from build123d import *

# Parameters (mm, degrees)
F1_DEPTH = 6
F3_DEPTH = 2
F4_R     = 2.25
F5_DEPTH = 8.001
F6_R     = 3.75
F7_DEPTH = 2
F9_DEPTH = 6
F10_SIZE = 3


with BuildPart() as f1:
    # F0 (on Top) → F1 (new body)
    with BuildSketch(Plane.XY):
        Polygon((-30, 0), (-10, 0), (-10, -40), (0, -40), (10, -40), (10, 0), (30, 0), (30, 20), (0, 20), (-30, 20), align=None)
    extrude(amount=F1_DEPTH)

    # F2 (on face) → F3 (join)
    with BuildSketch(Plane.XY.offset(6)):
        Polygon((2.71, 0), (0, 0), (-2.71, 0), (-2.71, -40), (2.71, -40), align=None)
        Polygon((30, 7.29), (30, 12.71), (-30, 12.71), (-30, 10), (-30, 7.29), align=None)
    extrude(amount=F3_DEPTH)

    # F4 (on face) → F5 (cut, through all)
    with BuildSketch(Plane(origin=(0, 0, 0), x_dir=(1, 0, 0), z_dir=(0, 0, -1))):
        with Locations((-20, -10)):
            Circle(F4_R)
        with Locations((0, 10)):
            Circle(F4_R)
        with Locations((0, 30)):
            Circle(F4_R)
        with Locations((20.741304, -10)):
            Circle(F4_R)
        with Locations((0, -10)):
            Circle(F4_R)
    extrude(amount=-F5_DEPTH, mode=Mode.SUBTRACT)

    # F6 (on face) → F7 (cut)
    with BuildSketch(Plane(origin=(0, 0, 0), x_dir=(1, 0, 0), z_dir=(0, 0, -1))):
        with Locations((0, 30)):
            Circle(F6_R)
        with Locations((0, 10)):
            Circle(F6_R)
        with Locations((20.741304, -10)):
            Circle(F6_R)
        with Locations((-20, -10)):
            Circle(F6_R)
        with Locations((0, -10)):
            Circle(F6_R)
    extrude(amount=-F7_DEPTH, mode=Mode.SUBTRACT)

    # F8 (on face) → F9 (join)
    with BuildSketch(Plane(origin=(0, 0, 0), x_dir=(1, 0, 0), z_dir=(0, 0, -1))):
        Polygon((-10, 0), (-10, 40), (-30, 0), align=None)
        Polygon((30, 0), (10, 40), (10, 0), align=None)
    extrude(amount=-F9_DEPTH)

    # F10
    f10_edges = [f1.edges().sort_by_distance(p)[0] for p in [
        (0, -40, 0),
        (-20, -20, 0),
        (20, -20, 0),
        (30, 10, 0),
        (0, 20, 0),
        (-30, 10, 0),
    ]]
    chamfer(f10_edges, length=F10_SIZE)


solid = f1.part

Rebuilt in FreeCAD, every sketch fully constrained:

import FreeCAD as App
import Part
import Sketcher
from FreeCAD import Vector


def edges_at(feature, points):
    """Names of the edges that pass closest to the given points."""
    edges = feature.Shape.Edges
    near = lambda p: min(range(len(edges)), key=lambda i: edges[i].distToShape(Part.Vertex(*p))[0])
    return sorted({f"Edge{near(p) + 1}" for p in points})

doc = App.newDocument("Part")
body = doc.addObject("PartDesign::Body", "Body")

# Sketch on XY plane
sketch1 = body.newObject("Sketcher::SketchObject", "Sketch")
sketch1.AttachmentSupport = (doc.getObject("XY_Plane"), [""])
sketch1.MapMode = "FlatFace"
sketch1.addGeometry(Part.LineSegment(Vector(-30, 0, 0), Vector(-10, 0, 0)), False)
sketch1.addGeometry(Part.LineSegment(Vector(-10, 0, 0), Vector(-10, -40, 0)), False)
sketch1.addGeometry(Part.LineSegment(Vector(-10, -40, 0), Vector(10, -40, 0)), False)
sketch1.addGeometry(Part.LineSegment(Vector(10, -40, 0), Vector(10, 0, 0)), False)
sketch1.addGeometry(Part.LineSegment(Vector(10, 0, 0), Vector(30, 0, 0)), False)
sketch1.addGeometry(Part.LineSegment(Vector(30, 0, 0), Vector(30, 20, 0)), False)
sketch1.addGeometry(Part.LineSegment(Vector(30, 20, 0), Vector(-30, 20, 0)), False)
sketch1.addGeometry(Part.LineSegment(Vector(-30, 20, 0), Vector(-30, 0, 0)), False)
sketch1.addConstraint(Sketcher.Constraint("Coincident", 0, 2, 1, 1))
sketch1.addConstraint(Sketcher.Constraint("Coincident", 1, 2, 2, 1))
sketch1.addConstraint(Sketcher.Constraint("Coincident", 2, 2, 3, 1))
sketch1.addConstraint(Sketcher.Constraint("Coincident", 3, 2, 4, 1))
sketch1.addConstraint(Sketcher.Constraint("Coincident", 4, 2, 5, 1))
sketch1.addConstraint(Sketcher.Constraint("Coincident", 5, 2, 6, 1))
sketch1.addConstraint(Sketcher.Constraint("Coincident", 6, 2, 7, 1))
sketch1.addConstraint(Sketcher.Constraint("Coincident", 7, 2, 0, 1))
sketch1.addConstraint(Sketcher.Constraint("Horizontal", 0))
sketch1.addConstraint(Sketcher.Constraint("Vertical", 1))
sketch1.addConstraint(Sketcher.Constraint("Horizontal", 2))
sketch1.addConstraint(Sketcher.Constraint("Vertical", 3))
sketch1.addConstraint(Sketcher.Constraint("Horizontal", 4))
sketch1.addConstraint(Sketcher.Constraint("Vertical", 5))
sketch1.addConstraint(Sketcher.Constraint("Horizontal", 6))
sketch1.addConstraint(Sketcher.Constraint("Vertical", 7))
sketch1.addConstraint(Sketcher.Constraint("Symmetric", 0, 2, 3, 2, -1, 1))
sketch1.addConstraint(Sketcher.Constraint("Symmetric", 4, 2, 7, 2, -2))
sketch1.addConstraint(Sketcher.Constraint("Equal", 0, 2))
sketch1.addConstraint(Sketcher.Constraint("Equal", 4, 5))
sketch1.addConstraint(Sketcher.Constraint("DistanceX", 0, 1, 0, 2, 20.0))
sketch1.addConstraint(Sketcher.Constraint("DistanceY", 1, 2, 1, 1, 40.0))
pad1 = body.newObject("PartDesign::Pad", "Pad")
pad1.Profile = sketch1
pad1.Length = 6

# Sketch on XY plane
sketch2 = body.newObject("Sketcher::SketchObject", "Sketch001")
sketch2.AttachmentSupport = (doc.getObject("XY_Plane"), [""])
sketch2.MapMode = "FlatFace"
sketch2.AttachmentOffset = App.Placement(Vector(0, 0, 6), App.Rotation())
sketch2.addGeometry(Part.LineSegment(Vector(3, 0, 0), Vector(-3, 0, 0)), False)
sketch2.addGeometry(Part.LineSegment(Vector(-3, 0, 0), Vector(-3, -40, 0)), False)
sketch2.addGeometry(Part.LineSegment(Vector(-3, -40, 0), Vector(3, -40, 0)), False)
sketch2.addGeometry(Part.LineSegment(Vector(3, -40, 0), Vector(3, 0, 0)), False)
sketch2.addGeometry(Part.LineSegment(Vector(30, 7, 0), Vector(30, 13, 0)), False)
sketch2.addGeometry(Part.LineSegment(Vector(30, 13, 0), Vector(-30, 13, 0)), False)
sketch2.addGeometry(Part.LineSegment(Vector(-30, 13, 0), Vector(-30, 7, 0)), False)
sketch2.addGeometry(Part.LineSegment(Vector(-30, 7, 0), Vector(30, 7, 0)), False)
sketch2.addConstraint(Sketcher.Constraint("Coincident", 0, 2, 1, 1))
sketch2.addConstraint(Sketcher.Constraint("Coincident", 1, 2, 2, 1))
sketch2.addConstraint(Sketcher.Constraint("Coincident", 2, 2, 3, 1))
sketch2.addConstraint(Sketcher.Constraint("Coincident", 3, 2, 0, 1))
sketch2.addConstraint(Sketcher.Constraint("Coincident", 4, 2, 5, 1))
sketch2.addConstraint(Sketcher.Constraint("Coincident", 5, 2, 6, 1))
sketch2.addConstraint(Sketcher.Constraint("Coincident", 6, 2, 7, 1))
sketch2.addConstraint(Sketcher.Constraint("Coincident", 7, 2, 4, 1))
sketch2.addConstraint(Sketcher.Constraint("Horizontal", 0))
sketch2.addConstraint(Sketcher.Constraint("Vertical", 1))
sketch2.addConstraint(Sketcher.Constraint("Horizontal", 2))
sketch2.addConstraint(Sketcher.Constraint("Vertical", 3))
sketch2.addConstraint(Sketcher.Constraint("Vertical", 4))
sketch2.addConstraint(Sketcher.Constraint("Horizontal", 5))
sketch2.addConstraint(Sketcher.Constraint("Vertical", 6))
sketch2.addConstraint(Sketcher.Constraint("Horizontal", 7))
sketch2.addConstraint(Sketcher.Constraint("Symmetric", 0, 2, 3, 2, -1, 1))
sketch2.addConstraint(Sketcher.Constraint("Equal", 2, 4))
sketch2.addConstraint(Sketcher.Constraint("DistanceX", 5, 2, 5, 1, 60.0))
sketch2.addConstraint(Sketcher.Constraint("DistanceY", 1, 2, 1, 1, 40.0))
sketch2.addConstraint(Sketcher.Constraint("DistanceX", -1, 1, 4, 2, 30.0))
sketch2.addConstraint(Sketcher.Constraint("DistanceX", 0, 2, 0, 1, 5.42))
sketch2.addConstraint(Sketcher.Constraint("DistanceY", -1, 1, 4, 2, 12.71))
pad2 = body.newObject("PartDesign::Pad", "Pad001")
pad2.Profile = sketch2
pad2.Length = 2

# Sketch on XY plane
sketch3 = body.newObject("Sketcher::SketchObject", "Sketch002")
sketch3.AttachmentSupport = (doc.getObject("XY_Plane"), [""])
sketch3.MapMode = "FlatFace"
sketch3.addGeometry(Part.Circle(Vector(-20, 10, 0), Vector(0, 0, 1), 2.2), False)
sketch3.addGeometry(Part.Circle(Vector(0, -10, 0), Vector(0, 0, 1), 2.2), False)
sketch3.addGeometry(Part.Circle(Vector(0, -30, 0), Vector(0, 0, 1), 2.2), False)
sketch3.addGeometry(Part.Circle(Vector(20.7, 10, 0), Vector(0, 0, 1), 2.2), False)
sketch3.addGeometry(Part.Circle(Vector(0, 10, 0), Vector(0, 0, 1), 2.2), False)
sketch3.addConstraint(Sketcher.Constraint("Equal", 0, 1))
sketch3.addConstraint(Sketcher.Constraint("Equal", 1, 2))
sketch3.addConstraint(Sketcher.Constraint("Equal", 2, 3))
sketch3.addConstraint(Sketcher.Constraint("Equal", 3, 4))
sketch3.addConstraint(Sketcher.Constraint("Symmetric", 1, 3, 4, 3, -1, 1))
sketch3.addConstraint(Sketcher.Constraint("PointOnObject", 1, 3, -2))
sketch3.addConstraint(Sketcher.Constraint("PointOnObject", 2, 3, -2))
sketch3.addConstraint(Sketcher.Constraint("Horizontal", 0, 3, 3, 3))
sketch3.addConstraint(Sketcher.Constraint("Horizontal", 3, 3, 4, 3))
sketch3.addConstraint(Sketcher.Constraint("Diameter", 0, 4.5))
sketch3.addConstraint(Sketcher.Constraint("DistanceX", 0, 3, -1, 1, 20.0))
sketch3.addConstraint(Sketcher.Constraint("DistanceY", -1, 1, 0, 3, 10.0))
sketch3.addConstraint(Sketcher.Constraint("DistanceY", 2, 3, -1, 1, 30.0))
sketch3.addConstraint(Sketcher.Constraint("DistanceX", -1, 1, 3, 3, 20.741304))
pocket1 = body.newObject("PartDesign::Pocket", "Pocket")
pocket1.Profile = sketch3
pocket1.Type = "ThroughAll"
pocket1.Reversed = True

# Sketch on XY plane
sketch4 = body.newObject("Sketcher::SketchObject", "Sketch003")
sketch4.AttachmentSupport = (doc.getObject("XY_Plane"), [""])
sketch4.MapMode = "FlatFace"
sketch4.addGeometry(Part.Circle(Vector(0, -30, 0), Vector(0, 0, 1), 3.8), False)
sketch4.addGeometry(Part.Circle(Vector(0, -10, 0), Vector(0, 0, 1), 3.8), False)
sketch4.addGeometry(Part.Circle(Vector(20.7, 10, 0), Vector(0, 0, 1), 3.8), False)
sketch4.addGeometry(Part.Circle(Vector(-20, 10, 0), Vector(0, 0, 1), 3.8), False)
sketch4.addGeometry(Part.Circle(Vector(0, 10, 0), Vector(0, 0, 1), 3.8), False)
sketch4.addConstraint(Sketcher.Constraint("Equal", 0, 1))
sketch4.addConstraint(Sketcher.Constraint("Equal", 1, 2))
sketch4.addConstraint(Sketcher.Constraint("Equal", 2, 3))
sketch4.addConstraint(Sketcher.Constraint("Equal", 3, 4))
sketch4.addConstraint(Sketcher.Constraint("Symmetric", 1, 3, 4, 3, -1, 1))
sketch4.addConstraint(Sketcher.Constraint("PointOnObject", 0, 3, -2))
sketch4.addConstraint(Sketcher.Constraint("PointOnObject", 1, 3, -2))
sketch4.addConstraint(Sketcher.Constraint("Horizontal", 2, 3, 3, 3))
sketch4.addConstraint(Sketcher.Constraint("Horizontal", 3, 3, 4, 3))
sketch4.addConstraint(Sketcher.Constraint("Diameter", 0, 7.5))
sketch4.addConstraint(Sketcher.Constraint("DistanceY", 0, 3, -1, 1, 30.0))
sketch4.addConstraint(Sketcher.Constraint("DistanceY", 1, 3, -1, 1, 10.0))
sketch4.addConstraint(Sketcher.Constraint("DistanceX", 3, 3, -1, 1, 20.0))
sketch4.addConstraint(Sketcher.Constraint("DistanceX", -1, 1, 2, 3, 20.741304))
pocket2 = body.newObject("PartDesign::Pocket", "Pocket001")
pocket2.Profile = sketch4
pocket2.Length = 2
pocket2.Reversed = True

# Sketch on XY plane
sketch5 = body.newObject("Sketcher::SketchObject", "Sketch004")
sketch5.AttachmentSupport = (doc.getObject("XY_Plane"), [""])
sketch5.MapMode = "FlatFace"
sketch5.addGeometry(Part.LineSegment(Vector(-10, 0, 0), Vector(-10, -40, 0)), False)
sketch5.addGeometry(Part.LineSegment(Vector(-10, -40, 0), Vector(-30, 0, 0)), False)
sketch5.addGeometry(Part.LineSegment(Vector(-30, 0, 0), Vector(-10, 0, 0)), False)
sketch5.addGeometry(Part.LineSegment(Vector(30, 0, 0), Vector(10, -40, 0)), False)
sketch5.addGeometry(Part.LineSegment(Vector(10, -40, 0), Vector(10, 0, 0)), False)
sketch5.addGeometry(Part.LineSegment(Vector(10, 0, 0), Vector(30, 0, 0)), False)
sketch5.addConstraint(Sketcher.Constraint("Coincident", 0, 2, 1, 1))
sketch5.addConstraint(Sketcher.Constraint("Coincident", 1, 2, 2, 1))
sketch5.addConstraint(Sketcher.Constraint("Coincident", 2, 2, 0, 1))
sketch5.addConstraint(Sketcher.Constraint("Coincident", 3, 2, 4, 1))
sketch5.addConstraint(Sketcher.Constraint("Coincident", 4, 2, 5, 1))
sketch5.addConstraint(Sketcher.Constraint("Coincident", 5, 2, 3, 1))
sketch5.addConstraint(Sketcher.Constraint("Vertical", 0))
sketch5.addConstraint(Sketcher.Constraint("Horizontal", 2))
sketch5.addConstraint(Sketcher.Constraint("Vertical", 4))
sketch5.addConstraint(Sketcher.Constraint("Horizontal", 5))
sketch5.addConstraint(Sketcher.Constraint("Symmetric", 2, 2, 4, 2, -1, 1))
sketch5.addConstraint(Sketcher.Constraint("Symmetric", 1, 2, 5, 2, -2))
sketch5.addConstraint(Sketcher.Constraint("Horizontal", 0, 2, 3, 2))
sketch5.addConstraint(Sketcher.Constraint("DistanceX", 2, 1, 2, 2, 20.0))
sketch5.addConstraint(Sketcher.Constraint("DistanceY", 0, 2, 0, 1, 40.0))
sketch5.addConstraint(Sketcher.Constraint("DistanceX", 0, 2, -1, 1, 10.0))
pad3 = body.newObject("PartDesign::Pad", "Pad002")
pad3.Profile = sketch5
pad3.Length = 6
doc.recompute()

chamfer = body.newObject("PartDesign::Chamfer", "Chamfer")
chamfer.Base = (pad3, edges_at(pad3, [
    (0, -40, 0),
    (-20, -20, 0),
    (20, -20, 0),
    (30, 10, 0),
    (0, 20, 0),
    (-30, 10, 0),
]))
chamfer.Size = 3

doc.recompute()
